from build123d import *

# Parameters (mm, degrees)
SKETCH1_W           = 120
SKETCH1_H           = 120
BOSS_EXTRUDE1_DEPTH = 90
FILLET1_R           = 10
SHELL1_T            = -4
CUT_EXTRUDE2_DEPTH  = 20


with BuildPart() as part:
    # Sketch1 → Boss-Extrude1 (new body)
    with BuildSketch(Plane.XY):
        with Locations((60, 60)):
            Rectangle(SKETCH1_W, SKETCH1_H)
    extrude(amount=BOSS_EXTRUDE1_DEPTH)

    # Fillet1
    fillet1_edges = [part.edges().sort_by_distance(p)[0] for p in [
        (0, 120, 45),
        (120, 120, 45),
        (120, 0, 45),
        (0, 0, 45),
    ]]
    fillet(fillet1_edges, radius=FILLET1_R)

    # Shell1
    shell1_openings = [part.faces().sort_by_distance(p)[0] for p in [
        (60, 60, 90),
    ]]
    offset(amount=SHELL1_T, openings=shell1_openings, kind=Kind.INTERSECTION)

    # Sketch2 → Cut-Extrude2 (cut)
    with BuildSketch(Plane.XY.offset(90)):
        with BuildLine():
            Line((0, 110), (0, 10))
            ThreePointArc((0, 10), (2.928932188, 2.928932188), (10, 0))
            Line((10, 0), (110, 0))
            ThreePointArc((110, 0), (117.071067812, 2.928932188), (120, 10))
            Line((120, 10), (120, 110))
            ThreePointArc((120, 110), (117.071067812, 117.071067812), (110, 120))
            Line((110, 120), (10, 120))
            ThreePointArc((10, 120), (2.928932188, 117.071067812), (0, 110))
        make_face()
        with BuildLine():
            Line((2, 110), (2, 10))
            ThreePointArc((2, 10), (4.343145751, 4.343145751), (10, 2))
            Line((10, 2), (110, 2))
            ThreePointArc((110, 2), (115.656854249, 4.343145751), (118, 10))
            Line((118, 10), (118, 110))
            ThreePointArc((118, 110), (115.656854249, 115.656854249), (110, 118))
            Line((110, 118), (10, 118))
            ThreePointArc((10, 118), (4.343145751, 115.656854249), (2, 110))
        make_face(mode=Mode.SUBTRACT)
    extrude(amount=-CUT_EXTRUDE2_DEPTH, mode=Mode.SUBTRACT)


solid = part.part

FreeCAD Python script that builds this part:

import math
import FreeCAD as App
import Part
import Sketcher
Q = App.Units.Quantity


def edges_at(feature, points):
    """Names of the edges that pass closest to the given points."""
    edges = feature.Shape.Edges
    near = lambda p: min(range(len(edges)), key=lambda i: edges[i].distToShape(Part.Vertex(*p))[0])
    return sorted({f"Edge{near(p) + 1}" for p in points})


def faces_at(feature, points):
    """Names of the faces that lie closest to the given points."""
    faces = feature.Shape.Faces
    near = lambda p: min(range(len(faces)), key=lambda i: faces[i].distToShape(Part.Vertex(*p))[0])
    return sorted({f"Face{near(p) + 1}" for p in points})

doc = App.newDocument("Part")
body = doc.addObject("PartDesign::Body", "Body")

sketch1 = body.newObject("Sketcher::SketchObject", "Sketch")
sketch1.AttachmentSupport = (doc.getObject("XY_Plane"), [""])
sketch1.MapMode = "FlatFace"
sketch1.addGeometry([
    Part.LineSegment(App.Vector(0, 120, 0), App.Vector(0, 0, 0)),
    Part.LineSegment(App.Vector(0, 0, 0), App.Vector(120, 0, 0)),
    Part.LineSegment(App.Vector(120, 0, 0), App.Vector(120, 120, 0)),
    Part.LineSegment(App.Vector(120, 120, 0), App.Vector(0, 120, 0)),
], False)
sketch1.addConstraint([
    Sketcher.Constraint("Coincident", 0, 2, 1, 1),
    Sketcher.Constraint("Coincident", 1, 2, 2, 1),
    Sketcher.Constraint("Coincident", 2, 2, 3, 1),
    Sketcher.Constraint("Coincident", 3, 2, 0, 1),
    Sketcher.Constraint("Vertical", 0),
    Sketcher.Constraint("Horizontal", 1),
    Sketcher.Constraint("Vertical", 2),
    Sketcher.Constraint("Horizontal", 3),
    Sketcher.Constraint("Coincident", 0, 2, -1, 1),
    Sketcher.Constraint("Equal", 3, 0),
    Sketcher.Constraint("DistanceX", 1, 1, 1, 2, Q("120 mm")),
])
pad1 = body.newObject("PartDesign::Pad", "Pad")
pad1.Profile = sketch1
pad1.Length = 90
doc.recompute()

fillet = body.newObject("PartDesign::Fillet", "Fillet")
fillet.Base = (pad1, edges_at(pad1, [
    (0, 120, 45),
    (120, 120, 45),
    (120, 0, 45),
    (0, 0, 45),
]))
fillet.Radius = 10
doc.recompute()

thickness = body.newObject("PartDesign::Thickness", "Thickness")
thickness.Base = (fillet, faces_at(fillet, [(60, 60, 90)]))
thickness.Value = 4
thickness.Reversed = True
thickness.Join = "Intersection"

sketch2 = body.newObject("Sketcher::SketchObject", "Sketch001")
sketch2.AttachmentSupport = (doc.getObject("XY_Plane"), [""])
sketch2.MapMode = "FlatFace"
sketch2.AttachmentOffset = App.Placement(App.Vector(0, 0, 90), App.Rotation())
sketch2.addGeometry([
    Part.LineSegment(App.Vector(0, 110, 0), App.Vector(0, 10, 0)),
    Part.ArcOfCircle(Part.Circle(App.Vector(10, 10, 0), App.Vector(0, 0, 1), 10), math.radians(180), math.radians(270)),
    Part.LineSegment(App.Vector(10, 0, 0), App.Vector(110, 0, 0)),
    Part.ArcOfCircle(Part.Circle(App.Vector(110, 10, 0), App.Vector(0, 0, 1), 10), math.radians(-90), math.radians(0)),
    Part.LineSegment(App.Vector(120, 10, 0), App.Vector(120, 110, 0)),
    Part.ArcOfCircle(Part.Circle(App.Vector(110, 110, 0), App.Vector(0, 0, 1), 10), math.radians(0), math.radians(90)),
    Part.LineSegment(App.Vector(110, 120, 0), App.Vector(10, 120, 0)),
    Part.ArcOfCircle(Part.Circle(App.Vector(10, 110, 0), App.Vector(0, 0, 1), 10), math.radians(90), math.radians(180)),
    Part.LineSegment(App.Vector(2, 10, 0), App.Vector(2, 110, 0)),
    Part.ArcOfCircle(Part.Circle(App.Vector(10, 110, 0), App.Vector(0, 0, 1), 8), math.radians(90), math.radians(180)),
    Part.LineSegment(App.Vector(10, 118, 0), App.Vector(110, 118, 0)),
    Part.ArcOfCircle(Part.Circle(App.Vector(110, 110, 0), App.Vector(0, 0, 1), 8), math.radians(0), math.radians(90)),
    Part.LineSegment(App.Vector(118, 110, 0), App.Vector(118, 10, 0)),
    Part.ArcOfCircle(Part.Circle(App.Vector(110, 10, 0), App.Vector(0, 0, 1), 8), math.radians(-90), math.radians(0)),
    Part.LineSegment(App.Vector(110, 2, 0), App.Vector(10, 2, 0)),
    Part.ArcOfCircle(Part.Circle(App.Vector(10, 10, 0), App.Vector(0, 0, 1), 8), math.radians(-180), math.radians(-90)),
], False)
sketch2.addConstraint([
    Sketcher.Constraint("Tangent", 0, 2, 1, 1),
    Sketcher.Constraint("Tangent", 1, 2, 2, 1),
    Sketcher.Constraint("Tangent", 2, 2, 3, 1),
    Sketcher.Constraint("Tangent", 3, 2, 4, 1),
    Sketcher.Constraint("Tangent", 4, 2, 5, 1),
    Sketcher.Constraint("Tangent", 5, 2, 6, 1),
    Sketcher.Constraint("Tangent", 6, 2, 7, 1),
    Sketcher.Constraint("Tangent", 7, 2, 0, 1),
    Sketcher.Constraint("Tangent", 8, 2, 9, 2),
    Sketcher.Constraint("Tangent", 9, 1, 10, 1),
    Sketcher.Constraint("Tangent", 10, 2, 11, 2),
    Sketcher.Constraint("Tangent", 11, 1, 12, 1),
    Sketcher.Constraint("Tangent", 12, 2, 13, 2),
    Sketcher.Constraint("Tangent", 13, 1, 14, 1),
    Sketcher.Constraint("Tangent", 14, 2, 15, 2),
    Sketcher.Constraint("Tangent", 15, 1, 8, 1),
    Sketcher.Constraint("Vertical", 0),
    Sketcher.Constraint("Horizontal", 2),
    Sketcher.Constraint("Vertical", 4),
    Sketcher.Constraint("Horizontal", 6),
    Sketcher.Constraint("Vertical", 8),
    Sketcher.Constraint("Horizontal", 10),
    Sketcher.Constraint("Vertical", 12),
    Sketcher.Constraint("Horizontal", 14),
    Sketcher.Constraint("Coincident", 9, 3, 7, 3),
    Sketcher.Constraint("Coincident", 11, 3, 5, 3),
    Sketcher.Constraint("Coincident", 13, 3, 3, 3),
    Sketcher.Constraint("Equal", 1, 3),
    Sketcher.Constraint("Equal", 3, 5),
    Sketcher.Constraint("Equal", 5, 7),
    Sketcher.Constraint("Equal", 13, 15),
    Sketcher.Constraint("PointOnObject", 0, 2, -2),
    Sketcher.Constraint("PointOnObject", 1, 2, -1),
    Sketcher.Constraint("Equal", 14, 0),
    Sketcher.Constraint("Radius", 1, Q("10 mm")),
    Sketcher.Constraint("Radius", 9, Q("8 mm")),
    Sketcher.Constraint("DistanceX", 2, 1, 2, 2, Q("100 mm")),
])
pocket1 = body.newObject("PartDesign::Pocket", "Pocket")
pocket1.Profile = sketch2
pocket1.Length = 20

doc.recompute()
